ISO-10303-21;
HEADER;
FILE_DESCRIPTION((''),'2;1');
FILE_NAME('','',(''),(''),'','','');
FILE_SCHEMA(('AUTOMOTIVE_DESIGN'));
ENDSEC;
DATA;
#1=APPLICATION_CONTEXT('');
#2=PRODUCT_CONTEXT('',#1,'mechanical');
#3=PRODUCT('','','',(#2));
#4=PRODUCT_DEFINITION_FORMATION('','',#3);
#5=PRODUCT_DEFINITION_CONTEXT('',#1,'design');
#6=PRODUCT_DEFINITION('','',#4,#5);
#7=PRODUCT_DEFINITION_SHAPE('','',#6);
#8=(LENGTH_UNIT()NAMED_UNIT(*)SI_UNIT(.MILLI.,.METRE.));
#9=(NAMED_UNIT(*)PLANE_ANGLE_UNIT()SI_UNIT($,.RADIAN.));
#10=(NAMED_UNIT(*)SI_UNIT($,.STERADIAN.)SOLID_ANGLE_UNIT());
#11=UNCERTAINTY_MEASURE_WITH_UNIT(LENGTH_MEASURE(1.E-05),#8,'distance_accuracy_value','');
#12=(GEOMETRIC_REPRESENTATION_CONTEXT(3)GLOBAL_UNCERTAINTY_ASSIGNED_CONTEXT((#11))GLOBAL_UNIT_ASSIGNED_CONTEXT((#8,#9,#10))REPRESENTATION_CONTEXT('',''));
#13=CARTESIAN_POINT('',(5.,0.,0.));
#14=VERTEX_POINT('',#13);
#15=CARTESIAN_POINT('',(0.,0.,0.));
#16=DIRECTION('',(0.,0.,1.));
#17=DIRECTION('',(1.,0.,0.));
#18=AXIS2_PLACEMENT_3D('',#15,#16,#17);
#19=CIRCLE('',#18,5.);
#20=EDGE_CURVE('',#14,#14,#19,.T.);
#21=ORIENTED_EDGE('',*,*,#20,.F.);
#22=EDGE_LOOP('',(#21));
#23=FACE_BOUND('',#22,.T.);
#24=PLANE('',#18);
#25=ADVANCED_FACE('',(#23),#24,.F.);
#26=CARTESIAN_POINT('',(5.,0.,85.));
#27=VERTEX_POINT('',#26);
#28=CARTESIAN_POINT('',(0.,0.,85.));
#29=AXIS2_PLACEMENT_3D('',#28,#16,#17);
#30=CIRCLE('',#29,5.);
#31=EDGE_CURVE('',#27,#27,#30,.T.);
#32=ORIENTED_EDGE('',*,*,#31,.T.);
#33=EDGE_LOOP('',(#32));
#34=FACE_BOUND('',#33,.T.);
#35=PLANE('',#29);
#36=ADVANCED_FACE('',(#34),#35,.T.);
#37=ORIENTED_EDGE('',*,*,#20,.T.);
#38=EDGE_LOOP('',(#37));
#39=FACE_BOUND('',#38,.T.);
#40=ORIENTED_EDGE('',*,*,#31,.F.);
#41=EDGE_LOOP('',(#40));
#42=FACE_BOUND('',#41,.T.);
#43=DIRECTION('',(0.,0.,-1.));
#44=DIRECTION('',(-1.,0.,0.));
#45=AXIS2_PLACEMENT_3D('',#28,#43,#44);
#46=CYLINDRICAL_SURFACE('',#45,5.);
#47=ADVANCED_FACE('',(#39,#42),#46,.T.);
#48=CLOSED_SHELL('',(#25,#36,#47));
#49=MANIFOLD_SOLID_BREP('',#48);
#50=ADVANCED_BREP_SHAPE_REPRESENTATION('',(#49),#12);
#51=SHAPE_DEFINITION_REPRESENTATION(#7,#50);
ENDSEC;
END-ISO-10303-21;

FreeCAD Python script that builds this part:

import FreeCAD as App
import Part
import Sketcher
from FreeCAD import Vector
Q = App.Units.Quantity

doc = App.newDocument("Part")
body = doc.addObject("PartDesign::Body", "Body")

# Sketch on XY plane
sketch1 = doc.addObject("Sketcher::SketchObject", "Sketch")
body.addObject(sketch1)
sketch1.AttachmentSupport = (doc.XY_Plane, [""])
sketch1.MapMode = "FlatFace"
sketch1.addGeometry(Part.Circle(Vector(0, 0, 0), Vector(0, 0, 1), 5), False)
sketch1.addConstraint([
    Sketcher.Constraint("Coincident", 0, 3, -1, 1),
    Sketcher.Constraint("Diameter", 0, Q("10 mm")),
])
pad1 = doc.addObject("PartDesign::Pad", "Pad")
body.addObject(pad1)
pad1.Profile = sketch1
pad1.Length = 85

doc.recompute()
